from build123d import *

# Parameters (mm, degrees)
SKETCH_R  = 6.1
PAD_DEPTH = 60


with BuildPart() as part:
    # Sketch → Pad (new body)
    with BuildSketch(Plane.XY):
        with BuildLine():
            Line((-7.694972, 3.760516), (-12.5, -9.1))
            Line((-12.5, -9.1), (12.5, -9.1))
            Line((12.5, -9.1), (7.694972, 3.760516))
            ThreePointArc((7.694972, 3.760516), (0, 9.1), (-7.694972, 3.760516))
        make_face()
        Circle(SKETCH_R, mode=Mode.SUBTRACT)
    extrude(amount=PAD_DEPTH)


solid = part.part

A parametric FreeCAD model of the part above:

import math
import FreeCAD as App
import Part
import Sketcher

V = App.Vector

doc = App.newDocument("Part")
body = doc.addObject("PartDesign::Body", "Body")

sketch1 = body.newObject("Sketcher::SketchObject", "Sketch")
sketch1.AttachmentSupport = (doc.getObject("XY_Plane"), [""])
sketch1.MapMode = "FlatFace"
sketch1.addGeometry(Part.LineSegment(V(-8, 4, 0), V(-12, -9, 0)), False)
sketch1.addGeometry(Part.LineSegment(V(-12, -9, 0), V(12, -9, 0)), False)
sketch1.addGeometry(Part.LineSegment(V(12, -9, 0), V(8, 4, 0)), False)
sketch1.addGeometry(Part.ArcOfCircle(Part.Circle(V(0, 1, 0), V(0, 0, 1), 8), math.radians(20), math.radians(160)), False)
sketch1.addGeometry(Part.Circle(V(0, 0, 0), V(0, 0, 1), 6), False)
sketch1.addConstraint(Sketcher.Constraint("Coincident", 0, 2, 1, 1))
sketch1.addConstraint(Sketcher.Constraint("Coincident", 1, 2, 2, 1))
sketch1.addConstraint(Sketcher.Constraint("Tangent", 2, 2, 3, 1))
sketch1.addConstraint(Sketcher.Constraint("Tangent", 3, 2, 0, 1))
sketch1.addConstraint(Sketcher.Constraint("Horizontal", 1))
sketch1.addConstraint(Sketcher.Constraint("Coincident", 4, 3, -1, 1))
sketch1.addConstraint(Sketcher.Constraint("Symmetric", 2, 2, 3, 2, -2))
sketch1.addConstraint(Sketcher.Constraint("Diameter", 4, 12.2))
sketch1.addConstraint(Sketcher.Constraint("DistanceX", 1, 1, 1, 2, 25.0))
sketch1.addConstraint(Sketcher.Constraint("DistanceY", 0, 2, -1, 1, 9.1))
sketch1.addConstraint(Sketcher.Constraint("Radius", 3, 8.214528))
sketch1.addConstraint(Sketcher.Constraint("DistanceY", -1, 1, 3, 3, 0.885472))
pad1 = body.newObject("PartDesign::Pad", "Pad")
pad1.Profile = sketch1
pad1.Length = 60

doc.recompute()
